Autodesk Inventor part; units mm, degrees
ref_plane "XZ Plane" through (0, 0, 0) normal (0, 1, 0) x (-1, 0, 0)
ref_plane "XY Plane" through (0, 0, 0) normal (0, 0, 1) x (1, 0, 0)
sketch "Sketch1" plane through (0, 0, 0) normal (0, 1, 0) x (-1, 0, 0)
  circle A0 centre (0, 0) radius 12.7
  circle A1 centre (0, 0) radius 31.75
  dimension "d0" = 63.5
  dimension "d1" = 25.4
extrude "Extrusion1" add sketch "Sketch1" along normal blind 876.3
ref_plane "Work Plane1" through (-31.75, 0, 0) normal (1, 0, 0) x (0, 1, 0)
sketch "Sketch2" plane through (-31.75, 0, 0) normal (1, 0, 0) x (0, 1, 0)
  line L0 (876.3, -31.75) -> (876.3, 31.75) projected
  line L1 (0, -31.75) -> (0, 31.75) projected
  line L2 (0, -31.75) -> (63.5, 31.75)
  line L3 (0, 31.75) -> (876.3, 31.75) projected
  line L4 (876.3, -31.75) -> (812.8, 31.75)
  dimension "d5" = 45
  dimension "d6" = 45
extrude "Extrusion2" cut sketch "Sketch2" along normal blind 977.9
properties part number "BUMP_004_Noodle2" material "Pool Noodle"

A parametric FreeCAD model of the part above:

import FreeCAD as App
import Part
import Sketcher
from FreeCAD import Vector
Q = App.Units.Quantity

doc = App.newDocument("Part")
body = doc.addObject("PartDesign::Body", "Body")

sketch1 = body.newObject("Sketcher::SketchObject", "Sketch")
sketch1.AttachmentSupport = (doc.getObject("XZ_Plane"), [""])
sketch1.MapMode = "FlatFace"
sketch1.addGeometry(Part.Circle(Vector(0, 0, 0), Vector(0, 0, 1), 31.75), False)
sketch1.addGeometry(Part.Circle(Vector(0, 0, 0), Vector(0, 0, 1), 12.7), False)
sketch1.addConstraint(Sketcher.Constraint("Coincident", 0, 3, -1, 1))
sketch1.addConstraint(Sketcher.Constraint("Coincident", 1, 3, -1, 1))
sketch1.addConstraint(Sketcher.Constraint("Diameter", 1, Q("1 in")))
sketch1.addConstraint(Sketcher.Constraint("Diameter", 0, Q("2.5 in")))
pad1 = body.newObject("PartDesign::Pad", "Pad")
pad1.Profile = sketch1
pad1.Length = Q("34.5 in")
pad1.Reversed = True

sketch2 = body.newObject("Sketcher::SketchObject", "Sketch001")
sketch2.AttachmentSupport = (doc.getObject("YZ_Plane"), [""])
sketch2.MapMode = "FlatFace"
sketch2.AttachmentOffset = App.Placement(Vector(0, 0, -1.25 * 25.4), App.Rotation())
sketch2.addGeometry(Part.LineSegment(Vector(812.8, 31.75, 0), Vector(876.3, -31.75, 0)), False)
sketch2.addGeometry(Part.LineSegment(Vector(876.3, -31.75, 0), Vector(876.3, 31.75, 0)), False)
sketch2.addGeometry(Part.LineSegment(Vector(876.3, 31.75, 0), Vector(812.8, 31.75, 0)), False)
sketch2.addGeometry(Part.LineSegment(Vector(0, -31.75, 0), Vector(63.5, 31.75, 0)), False)
sketch2.addGeometry(Part.LineSegment(Vector(63.5, 31.75, 0), Vector(0, 31.75, 0)), False)
sketch2.addGeometry(Part.LineSegment(Vector(0, 31.75, 0), Vector(0, -31.75, 0)), False)
sketch2.addConstraint(Sketcher.Constraint("Coincident", 0, 2, 1, 1))
sketch2.addConstraint(Sketcher.Constraint("Coincident", 1, 2, 2, 1))
sketch2.addConstraint(Sketcher.Constraint("Coincident", 2, 2, 0, 1))
sketch2.addConstraint(Sketcher.Constraint("Coincident", 3, 2, 4, 1))
sketch2.addConstraint(Sketcher.Constraint("Coincident", 4, 2, 5, 1))
sketch2.addConstraint(Sketcher.Constraint("Coincident", 5, 2, 3, 1))
sketch2.addConstraint(Sketcher.Constraint("Vertical", 1))
sketch2.addConstraint(Sketcher.Constraint("Horizontal", 2))
sketch2.addConstraint(Sketcher.Constraint("Horizontal", 4))
sketch2.addConstraint(Sketcher.Constraint("Vertical", 5))
sketch2.addConstraint(Sketcher.Constraint("Symmetric", 4, 2, 5, 2, -1, 1))
sketch2.addConstraint(Sketcher.Constraint("Perpendicular", 0, 3))
sketch2.addConstraint(Sketcher.Constraint("Horizontal", 2, 2, 3, 2))
sketch2.addConstraint(Sketcher.Constraint("Horizontal", 0, 2, 5, 2))
sketch2.addConstraint(Sketcher.Constraint("Equal", 2, 4))
sketch2.addConstraint(Sketcher.Constraint("DistanceX", 2, 2, 2, 1, Q("2.5 in")))
sketch2.addConstraint(Sketcher.Constraint("DistanceX", -1, 1, 2, 2, Q("32 in")))
pocket1 = body.newObject("PartDesign::Pocket", "Pocket")
pocket1.Profile = sketch2
pocket1.Length = Q("38.5 in")
pocket1.Reversed = True

doc.recompute()
